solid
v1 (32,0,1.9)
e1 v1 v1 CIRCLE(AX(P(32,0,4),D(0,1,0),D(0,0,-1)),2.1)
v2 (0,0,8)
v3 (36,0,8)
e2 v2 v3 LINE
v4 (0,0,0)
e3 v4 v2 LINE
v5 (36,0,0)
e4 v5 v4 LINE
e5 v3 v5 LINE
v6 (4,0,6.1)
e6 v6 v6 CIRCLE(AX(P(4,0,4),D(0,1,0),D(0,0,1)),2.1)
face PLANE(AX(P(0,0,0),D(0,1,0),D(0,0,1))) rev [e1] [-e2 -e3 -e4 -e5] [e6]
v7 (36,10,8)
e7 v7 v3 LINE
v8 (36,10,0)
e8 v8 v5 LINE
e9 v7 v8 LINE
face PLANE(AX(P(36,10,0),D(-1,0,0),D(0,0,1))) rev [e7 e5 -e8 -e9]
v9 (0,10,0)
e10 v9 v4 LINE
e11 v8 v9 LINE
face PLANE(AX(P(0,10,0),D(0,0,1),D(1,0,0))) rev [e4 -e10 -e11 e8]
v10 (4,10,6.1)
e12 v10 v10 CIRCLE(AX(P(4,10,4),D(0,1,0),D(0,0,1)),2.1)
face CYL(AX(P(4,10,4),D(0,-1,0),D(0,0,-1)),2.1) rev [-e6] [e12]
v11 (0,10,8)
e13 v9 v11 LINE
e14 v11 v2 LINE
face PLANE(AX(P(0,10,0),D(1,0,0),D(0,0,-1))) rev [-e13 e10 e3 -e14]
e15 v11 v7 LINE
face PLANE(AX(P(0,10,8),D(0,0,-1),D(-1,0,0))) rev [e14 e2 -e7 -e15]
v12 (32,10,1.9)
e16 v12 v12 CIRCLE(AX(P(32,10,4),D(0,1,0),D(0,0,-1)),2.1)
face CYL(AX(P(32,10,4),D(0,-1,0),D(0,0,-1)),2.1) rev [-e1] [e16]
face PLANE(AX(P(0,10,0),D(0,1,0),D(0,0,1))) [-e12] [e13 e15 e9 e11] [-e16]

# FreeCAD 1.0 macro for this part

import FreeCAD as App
import Part
import Sketcher

V = App.Vector
Q = App.Units.Quantity


def add_polygon(sketch, points):
    """Adds a closed chain of lines whose ends are joined by coincident constraints."""
    first, n = sketch.GeometryCount, len(points)
    for a, b in zip(points, points[1:] + points[:1]):
        sketch.addGeometry(Part.LineSegment(App.Vector(*a, 0), App.Vector(*b, 0)), False)
    for i in range(n):
        sketch.addConstraint(Sketcher.Constraint("Coincident", first + i, 2, first + (i + 1) % n, 1))

doc = App.newDocument("Part")
body = doc.addObject("PartDesign::Body", "Body")

# Sketch on XZ plane
sketch1 = body.newObject("Sketcher::SketchObject", "Sketch")
sketch1.AttachmentSupport = (doc.getObject("XZ_Plane"), [""])
sketch1.MapMode = "FlatFace"
add_polygon(sketch1, [(0, 0), (0, 8), (36, 8), (36, 0)])  # lines 0-3
sketch1.addGeometry(Part.Circle(V(4, 4, 0), V(0, 0, 1), 2.1), False)  # 4
sketch1.addGeometry(Part.Circle(V(32, 4, 0), V(0, 0, 1), 2.1), False)  # 5
sketch1.addConstraint(Sketcher.Constraint("Vertical", 0))
sketch1.addConstraint(Sketcher.Constraint("Horizontal", 1))
sketch1.addConstraint(Sketcher.Constraint("Vertical", 2))
sketch1.addConstraint(Sketcher.Constraint("Horizontal", 3))
sketch1.addConstraint(Sketcher.Constraint("Coincident", 3, 2, -1, 1))
sketch1.addConstraint(Sketcher.Constraint("Equal", 4, 5))
sketch1.addConstraint(Sketcher.Constraint("Horizontal", 4, 3, 5, 3))
sketch1.addConstraint(Sketcher.Constraint("Diameter", 4, Q("4.2 mm")))
sketch1.addConstraint(Sketcher.Constraint("DistanceX", 1, 1, 1, 2, Q("36 mm")))
sketch1.addConstraint(Sketcher.Constraint("DistanceY", 0, 1, 0, 2, Q("8 mm")))
sketch1.addConstraint(Sketcher.Constraint("DistanceX", -1, 1, 4, 3, Q("4 mm")))
sketch1.addConstraint(Sketcher.Constraint("DistanceY", -1, 1, 4, 3, Q("4 mm")))
sketch1.addConstraint(Sketcher.Constraint("DistanceX", -1, 1, 5, 3, Q("32 mm")))
pad1 = body.newObject("PartDesign::Pad", "Pad")
pad1.Profile = sketch1
pad1.Length = 10
pad1.Reversed = True

doc.recompute()
